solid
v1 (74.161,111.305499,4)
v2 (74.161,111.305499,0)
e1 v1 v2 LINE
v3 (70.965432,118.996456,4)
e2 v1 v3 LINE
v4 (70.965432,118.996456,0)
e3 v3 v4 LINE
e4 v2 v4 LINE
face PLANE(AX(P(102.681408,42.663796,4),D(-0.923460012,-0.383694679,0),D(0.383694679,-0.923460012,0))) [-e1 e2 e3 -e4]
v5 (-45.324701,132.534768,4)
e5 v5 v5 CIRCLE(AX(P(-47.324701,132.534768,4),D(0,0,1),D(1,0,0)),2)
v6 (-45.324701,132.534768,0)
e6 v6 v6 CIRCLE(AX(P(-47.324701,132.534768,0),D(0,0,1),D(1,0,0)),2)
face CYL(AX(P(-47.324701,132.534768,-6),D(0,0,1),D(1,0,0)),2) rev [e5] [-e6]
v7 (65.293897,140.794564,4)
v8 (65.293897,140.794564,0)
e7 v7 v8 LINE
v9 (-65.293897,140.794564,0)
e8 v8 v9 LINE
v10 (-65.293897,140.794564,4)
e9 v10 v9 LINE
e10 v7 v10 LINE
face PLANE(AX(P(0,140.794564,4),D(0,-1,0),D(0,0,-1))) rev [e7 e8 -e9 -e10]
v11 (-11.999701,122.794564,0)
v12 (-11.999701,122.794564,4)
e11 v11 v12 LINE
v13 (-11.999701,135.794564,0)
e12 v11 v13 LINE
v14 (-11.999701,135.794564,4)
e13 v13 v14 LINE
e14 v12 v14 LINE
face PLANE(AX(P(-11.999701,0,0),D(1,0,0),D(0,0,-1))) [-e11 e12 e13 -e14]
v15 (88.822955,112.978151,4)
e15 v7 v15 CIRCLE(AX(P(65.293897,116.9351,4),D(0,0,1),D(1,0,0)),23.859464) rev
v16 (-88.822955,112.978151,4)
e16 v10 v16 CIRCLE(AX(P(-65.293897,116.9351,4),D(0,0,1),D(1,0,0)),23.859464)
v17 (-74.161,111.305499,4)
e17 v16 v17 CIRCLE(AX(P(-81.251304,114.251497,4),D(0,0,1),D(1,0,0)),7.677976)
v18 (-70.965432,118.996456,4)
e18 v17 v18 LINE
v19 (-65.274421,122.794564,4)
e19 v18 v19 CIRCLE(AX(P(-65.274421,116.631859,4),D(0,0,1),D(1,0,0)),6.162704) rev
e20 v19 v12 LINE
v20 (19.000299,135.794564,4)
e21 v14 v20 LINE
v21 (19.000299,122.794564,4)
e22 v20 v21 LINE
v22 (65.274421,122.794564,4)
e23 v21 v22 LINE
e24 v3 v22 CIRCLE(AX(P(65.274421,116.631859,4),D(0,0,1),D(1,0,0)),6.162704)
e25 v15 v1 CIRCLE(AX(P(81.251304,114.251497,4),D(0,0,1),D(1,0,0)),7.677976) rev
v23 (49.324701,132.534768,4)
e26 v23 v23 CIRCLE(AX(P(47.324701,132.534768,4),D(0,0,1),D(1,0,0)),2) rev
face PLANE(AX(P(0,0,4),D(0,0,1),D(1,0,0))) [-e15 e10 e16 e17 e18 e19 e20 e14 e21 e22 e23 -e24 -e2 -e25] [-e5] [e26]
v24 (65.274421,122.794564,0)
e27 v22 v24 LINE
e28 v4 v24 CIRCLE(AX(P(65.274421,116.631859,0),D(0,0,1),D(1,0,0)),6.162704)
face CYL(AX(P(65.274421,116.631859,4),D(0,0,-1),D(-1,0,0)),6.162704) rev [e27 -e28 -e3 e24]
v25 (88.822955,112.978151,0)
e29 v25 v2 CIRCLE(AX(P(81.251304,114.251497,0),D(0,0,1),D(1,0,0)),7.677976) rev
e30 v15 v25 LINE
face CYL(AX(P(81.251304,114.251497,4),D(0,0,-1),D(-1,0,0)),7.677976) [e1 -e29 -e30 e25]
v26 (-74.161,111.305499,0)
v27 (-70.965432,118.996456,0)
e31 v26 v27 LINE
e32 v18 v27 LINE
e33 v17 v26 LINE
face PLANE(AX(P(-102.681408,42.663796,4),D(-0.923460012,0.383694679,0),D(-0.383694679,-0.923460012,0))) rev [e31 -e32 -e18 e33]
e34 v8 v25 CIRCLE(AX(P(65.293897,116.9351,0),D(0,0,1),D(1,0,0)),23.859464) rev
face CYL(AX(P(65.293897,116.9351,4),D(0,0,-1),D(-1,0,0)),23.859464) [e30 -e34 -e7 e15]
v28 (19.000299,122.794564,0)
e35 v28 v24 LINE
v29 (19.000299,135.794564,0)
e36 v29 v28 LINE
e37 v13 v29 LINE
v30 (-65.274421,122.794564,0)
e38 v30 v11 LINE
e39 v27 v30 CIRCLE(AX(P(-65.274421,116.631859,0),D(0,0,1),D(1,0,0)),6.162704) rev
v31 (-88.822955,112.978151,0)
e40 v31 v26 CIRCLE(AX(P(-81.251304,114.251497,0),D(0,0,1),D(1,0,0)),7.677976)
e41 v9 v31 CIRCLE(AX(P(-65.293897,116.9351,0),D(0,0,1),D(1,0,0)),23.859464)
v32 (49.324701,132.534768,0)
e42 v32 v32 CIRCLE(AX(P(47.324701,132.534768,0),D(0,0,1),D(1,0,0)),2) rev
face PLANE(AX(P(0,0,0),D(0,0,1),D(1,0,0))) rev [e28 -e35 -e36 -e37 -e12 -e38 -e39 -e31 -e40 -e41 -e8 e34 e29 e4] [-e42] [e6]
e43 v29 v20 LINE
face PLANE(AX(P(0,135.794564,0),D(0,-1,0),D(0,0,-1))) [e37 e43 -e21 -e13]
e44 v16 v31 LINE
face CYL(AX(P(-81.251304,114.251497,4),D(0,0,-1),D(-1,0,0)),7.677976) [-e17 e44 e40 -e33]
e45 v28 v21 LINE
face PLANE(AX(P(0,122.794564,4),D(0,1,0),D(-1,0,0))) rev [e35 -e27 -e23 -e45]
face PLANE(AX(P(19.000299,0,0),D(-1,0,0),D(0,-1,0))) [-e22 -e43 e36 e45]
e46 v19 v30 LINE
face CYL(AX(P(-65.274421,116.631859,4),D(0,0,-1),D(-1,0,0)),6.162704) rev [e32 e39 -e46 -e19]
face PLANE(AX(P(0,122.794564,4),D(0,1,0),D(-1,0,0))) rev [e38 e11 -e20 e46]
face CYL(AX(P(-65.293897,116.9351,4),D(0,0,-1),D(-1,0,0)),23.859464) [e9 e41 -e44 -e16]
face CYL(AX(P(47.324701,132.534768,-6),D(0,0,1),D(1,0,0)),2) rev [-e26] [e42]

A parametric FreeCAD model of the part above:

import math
import FreeCAD as App
import Part
import Sketcher
from FreeCAD import Vector

doc = App.newDocument("Part")
body = doc.addObject("PartDesign::Body", "Body")

# Sketch on XY plane
sketch1 = body.newObject("Sketcher::SketchObject", "Sketch")
sketch1.AttachmentSupport = (doc.getObject("XY_Plane"), [""])
sketch1.MapMode = "FlatFace"
sketch1.addGeometry(Part.LineSegment(Vector(65, 141, 0), Vector(-65, 141, 0)), False)
sketch1.addGeometry(Part.ArcOfCircle(Part.Circle(Vector(-65, 117, 0), Vector(0, 0, 1), 24), math.radians(90), math.radians(190)), False)
sketch1.addGeometry(Part.ArcOfCircle(Part.Circle(Vector(-81, 114, 0), Vector(0, 0, 1), 8), math.radians(-170), math.radians(-23)), False)
sketch1.addGeometry(Part.LineSegment(Vector(-74, 111, 0), Vector(-71, 119, 0)), False)
sketch1.addGeometry(Part.ArcOfCircle(Part.Circle(Vector(-65, 117, 0), Vector(0, 0, 1), 6), math.radians(90), math.radians(157)), False)
sketch1.addGeometry(Part.LineSegment(Vector(-65, 123, 0), Vector(65, 123, 0)), False)
sketch1.addGeometry(Part.ArcOfCircle(Part.Circle(Vector(65, 117, 0), Vector(0, 0, 1), 6), math.radians(23), math.radians(90)), False)
sketch1.addGeometry(Part.LineSegment(Vector(71, 119, 0), Vector(74, 111, 0)), False)
sketch1.addGeometry(Part.ArcOfCircle(Part.Circle(Vector(81, 114, 0), Vector(0, 0, 1), 8), math.radians(-157), math.radians(-10)), False)
sketch1.addGeometry(Part.ArcOfCircle(Part.Circle(Vector(65, 117, 0), Vector(0, 0, 1), 24), math.radians(-10), math.radians(90)), False)
sketch1.addConstraint(Sketcher.Constraint("Tangent", 0, 2, 1, 1))
sketch1.addConstraint(Sketcher.Constraint("Tangent", 1, 2, 2, 1))
sketch1.addConstraint(Sketcher.Constraint("Tangent", 2, 2, 3, 1))
sketch1.addConstraint(Sketcher.Constraint("Tangent", 3, 2, 4, 2))
sketch1.addConstraint(Sketcher.Constraint("Tangent", 4, 1, 5, 1))
sketch1.addConstraint(Sketcher.Constraint("Tangent", 5, 2, 6, 2))
sketch1.addConstraint(Sketcher.Constraint("Tangent", 6, 1, 7, 1))
sketch1.addConstraint(Sketcher.Constraint("Tangent", 7, 2, 8, 1))
sketch1.addConstraint(Sketcher.Constraint("Tangent", 8, 2, 9, 1))
sketch1.addConstraint(Sketcher.Constraint("Tangent", 9, 2, 0, 1))
sketch1.addConstraint(Sketcher.Constraint("Horizontal", 0))
sketch1.addConstraint(Sketcher.Constraint("Horizontal", 5))
sketch1.addConstraint(Sketcher.Constraint("Equal", 4, 6))
sketch1.addConstraint(Sketcher.Constraint("Equal", 2, 8))
sketch1.addConstraint(Sketcher.Constraint("Equal", 1, 9))
sketch1.addConstraint(Sketcher.Constraint("Symmetric", 2, 3, 8, 3, -2))
sketch1.addConstraint(Sketcher.Constraint("Horizontal", 3, 2, 6, 1))
sketch1.addConstraint(Sketcher.Constraint("DistanceY", 4, 1, 0, 2, 18.0))
sketch1.addConstraint(Sketcher.Constraint("DistanceX", 2, 2, -1, 1, 74.161))
sketch1.addConstraint(Sketcher.Constraint("Radius", 1, 23.859464))
sketch1.addConstraint(Sketcher.Constraint("Radius", 2, 7.677976))
sketch1.addConstraint(Sketcher.Constraint("Radius", 4, 6.162704))
sketch1.addConstraint(Sketcher.Constraint("DistanceY", 2, 2, 2, 3, 2.945998))
sketch1.addConstraint(Sketcher.Constraint("DistanceX", 5, 1, 5, 2, 130.548842))
sketch1.addConstraint(Sketcher.Constraint("DistanceY", -1, 1, 1, 3, 116.9351))
pad1 = body.newObject("PartDesign::Pad", "Pad")
pad1.Profile = sketch1
pad1.Length = 4

# Sketch on XY plane
sketch2 = body.newObject("Sketcher::SketchObject", "Sketch001")
sketch2.AttachmentSupport = (doc.getObject("XY_Plane"), [""])
sketch2.MapMode = "FlatFace"
sketch2.AttachmentOffset = App.Placement(Vector(0, 0, 4), App.Rotation())
sketch2.addGeometry(Part.Circle(Vector(-47.3, 132.5, 0), Vector(0, 0, 1), 2), False)
sketch2.addGeometry(Part.Circle(Vector(47.3, 132.5, 0), Vector(0, 0, 1), 2), False)
sketch2.addConstraint(Sketcher.Constraint("Equal", 0, 1))
sketch2.addConstraint(Sketcher.Constraint("Symmetric", 0, 3, 1, 3, -2))
sketch2.addConstraint(Sketcher.Constraint("Diameter", 0, 4.0))
sketch2.addConstraint(Sketcher.Constraint("DistanceX", 0, 3, -1, 1, 47.324701))
sketch2.addConstraint(Sketcher.Constraint("DistanceY", -1, 1, 0, 3, 132.534768))
pocket1 = body.newObject("PartDesign::Pocket", "Pocket")
pocket1.Profile = sketch2
pocket1.Length = 10

# Sketch on XY plane
sketch3 = body.newObject("Sketcher::SketchObject", "Sketch002")
sketch3.AttachmentSupport = (doc.getObject("XY_Plane"), [""])
sketch3.MapMode = "FlatFace"
sketch3.AttachmentOffset = App.Placement(Vector(0, 0, 4), App.Rotation())
sketch3.addGeometry(Part.LineSegment(Vector(-12, 136, 0), Vector(-12, 123, 0)), False)
sketch3.addGeometry(Part.LineSegment(Vector(-12, 123, 0), Vector(19, 123, 0)), False)
sketch3.addGeometry(Part.LineSegment(Vector(19, 123, 0), Vector(19, 136, 0)), False)
sketch3.addGeometry(Part.LineSegment(Vector(19, 136, 0), Vector(-12, 136, 0)), False)
sketch3.addConstraint(Sketcher.Constraint("Coincident", 0, 2, 1, 1))
sketch3.addConstraint(Sketcher.Constraint("Coincident", 1, 2, 2, 1))
sketch3.addConstraint(Sketcher.Constraint("Coincident", 2, 2, 3, 1))
sketch3.addConstraint(Sketcher.Constraint("Coincident", 3, 2, 0, 1))
sketch3.addConstraint(Sketcher.Constraint("Vertical", 0))
sketch3.addConstraint(Sketcher.Constraint("Horizontal", 1))
sketch3.addConstraint(Sketcher.Constraint("Vertical", 2))
sketch3.addConstraint(Sketcher.Constraint("Horizontal", 3))
sketch3.addConstraint(Sketcher.Constraint("DistanceX", 1, 1, 1, 2, 31.0))
sketch3.addConstraint(Sketcher.Constraint("DistanceY", 0, 2, 0, 1, 13.0))
sketch3.addConstraint(Sketcher.Constraint("DistanceX", 0, 2, -1, 1, 11.999701))
sketch3.addConstraint(Sketcher.Constraint("DistanceY", -1, 1, 0, 2, 122.794564))
pocket2 = body.newObject("PartDesign::Pocket", "Pocket001")
pocket2.Profile = sketch3
pocket2.Type = "ThroughAll"

doc.recompute()
